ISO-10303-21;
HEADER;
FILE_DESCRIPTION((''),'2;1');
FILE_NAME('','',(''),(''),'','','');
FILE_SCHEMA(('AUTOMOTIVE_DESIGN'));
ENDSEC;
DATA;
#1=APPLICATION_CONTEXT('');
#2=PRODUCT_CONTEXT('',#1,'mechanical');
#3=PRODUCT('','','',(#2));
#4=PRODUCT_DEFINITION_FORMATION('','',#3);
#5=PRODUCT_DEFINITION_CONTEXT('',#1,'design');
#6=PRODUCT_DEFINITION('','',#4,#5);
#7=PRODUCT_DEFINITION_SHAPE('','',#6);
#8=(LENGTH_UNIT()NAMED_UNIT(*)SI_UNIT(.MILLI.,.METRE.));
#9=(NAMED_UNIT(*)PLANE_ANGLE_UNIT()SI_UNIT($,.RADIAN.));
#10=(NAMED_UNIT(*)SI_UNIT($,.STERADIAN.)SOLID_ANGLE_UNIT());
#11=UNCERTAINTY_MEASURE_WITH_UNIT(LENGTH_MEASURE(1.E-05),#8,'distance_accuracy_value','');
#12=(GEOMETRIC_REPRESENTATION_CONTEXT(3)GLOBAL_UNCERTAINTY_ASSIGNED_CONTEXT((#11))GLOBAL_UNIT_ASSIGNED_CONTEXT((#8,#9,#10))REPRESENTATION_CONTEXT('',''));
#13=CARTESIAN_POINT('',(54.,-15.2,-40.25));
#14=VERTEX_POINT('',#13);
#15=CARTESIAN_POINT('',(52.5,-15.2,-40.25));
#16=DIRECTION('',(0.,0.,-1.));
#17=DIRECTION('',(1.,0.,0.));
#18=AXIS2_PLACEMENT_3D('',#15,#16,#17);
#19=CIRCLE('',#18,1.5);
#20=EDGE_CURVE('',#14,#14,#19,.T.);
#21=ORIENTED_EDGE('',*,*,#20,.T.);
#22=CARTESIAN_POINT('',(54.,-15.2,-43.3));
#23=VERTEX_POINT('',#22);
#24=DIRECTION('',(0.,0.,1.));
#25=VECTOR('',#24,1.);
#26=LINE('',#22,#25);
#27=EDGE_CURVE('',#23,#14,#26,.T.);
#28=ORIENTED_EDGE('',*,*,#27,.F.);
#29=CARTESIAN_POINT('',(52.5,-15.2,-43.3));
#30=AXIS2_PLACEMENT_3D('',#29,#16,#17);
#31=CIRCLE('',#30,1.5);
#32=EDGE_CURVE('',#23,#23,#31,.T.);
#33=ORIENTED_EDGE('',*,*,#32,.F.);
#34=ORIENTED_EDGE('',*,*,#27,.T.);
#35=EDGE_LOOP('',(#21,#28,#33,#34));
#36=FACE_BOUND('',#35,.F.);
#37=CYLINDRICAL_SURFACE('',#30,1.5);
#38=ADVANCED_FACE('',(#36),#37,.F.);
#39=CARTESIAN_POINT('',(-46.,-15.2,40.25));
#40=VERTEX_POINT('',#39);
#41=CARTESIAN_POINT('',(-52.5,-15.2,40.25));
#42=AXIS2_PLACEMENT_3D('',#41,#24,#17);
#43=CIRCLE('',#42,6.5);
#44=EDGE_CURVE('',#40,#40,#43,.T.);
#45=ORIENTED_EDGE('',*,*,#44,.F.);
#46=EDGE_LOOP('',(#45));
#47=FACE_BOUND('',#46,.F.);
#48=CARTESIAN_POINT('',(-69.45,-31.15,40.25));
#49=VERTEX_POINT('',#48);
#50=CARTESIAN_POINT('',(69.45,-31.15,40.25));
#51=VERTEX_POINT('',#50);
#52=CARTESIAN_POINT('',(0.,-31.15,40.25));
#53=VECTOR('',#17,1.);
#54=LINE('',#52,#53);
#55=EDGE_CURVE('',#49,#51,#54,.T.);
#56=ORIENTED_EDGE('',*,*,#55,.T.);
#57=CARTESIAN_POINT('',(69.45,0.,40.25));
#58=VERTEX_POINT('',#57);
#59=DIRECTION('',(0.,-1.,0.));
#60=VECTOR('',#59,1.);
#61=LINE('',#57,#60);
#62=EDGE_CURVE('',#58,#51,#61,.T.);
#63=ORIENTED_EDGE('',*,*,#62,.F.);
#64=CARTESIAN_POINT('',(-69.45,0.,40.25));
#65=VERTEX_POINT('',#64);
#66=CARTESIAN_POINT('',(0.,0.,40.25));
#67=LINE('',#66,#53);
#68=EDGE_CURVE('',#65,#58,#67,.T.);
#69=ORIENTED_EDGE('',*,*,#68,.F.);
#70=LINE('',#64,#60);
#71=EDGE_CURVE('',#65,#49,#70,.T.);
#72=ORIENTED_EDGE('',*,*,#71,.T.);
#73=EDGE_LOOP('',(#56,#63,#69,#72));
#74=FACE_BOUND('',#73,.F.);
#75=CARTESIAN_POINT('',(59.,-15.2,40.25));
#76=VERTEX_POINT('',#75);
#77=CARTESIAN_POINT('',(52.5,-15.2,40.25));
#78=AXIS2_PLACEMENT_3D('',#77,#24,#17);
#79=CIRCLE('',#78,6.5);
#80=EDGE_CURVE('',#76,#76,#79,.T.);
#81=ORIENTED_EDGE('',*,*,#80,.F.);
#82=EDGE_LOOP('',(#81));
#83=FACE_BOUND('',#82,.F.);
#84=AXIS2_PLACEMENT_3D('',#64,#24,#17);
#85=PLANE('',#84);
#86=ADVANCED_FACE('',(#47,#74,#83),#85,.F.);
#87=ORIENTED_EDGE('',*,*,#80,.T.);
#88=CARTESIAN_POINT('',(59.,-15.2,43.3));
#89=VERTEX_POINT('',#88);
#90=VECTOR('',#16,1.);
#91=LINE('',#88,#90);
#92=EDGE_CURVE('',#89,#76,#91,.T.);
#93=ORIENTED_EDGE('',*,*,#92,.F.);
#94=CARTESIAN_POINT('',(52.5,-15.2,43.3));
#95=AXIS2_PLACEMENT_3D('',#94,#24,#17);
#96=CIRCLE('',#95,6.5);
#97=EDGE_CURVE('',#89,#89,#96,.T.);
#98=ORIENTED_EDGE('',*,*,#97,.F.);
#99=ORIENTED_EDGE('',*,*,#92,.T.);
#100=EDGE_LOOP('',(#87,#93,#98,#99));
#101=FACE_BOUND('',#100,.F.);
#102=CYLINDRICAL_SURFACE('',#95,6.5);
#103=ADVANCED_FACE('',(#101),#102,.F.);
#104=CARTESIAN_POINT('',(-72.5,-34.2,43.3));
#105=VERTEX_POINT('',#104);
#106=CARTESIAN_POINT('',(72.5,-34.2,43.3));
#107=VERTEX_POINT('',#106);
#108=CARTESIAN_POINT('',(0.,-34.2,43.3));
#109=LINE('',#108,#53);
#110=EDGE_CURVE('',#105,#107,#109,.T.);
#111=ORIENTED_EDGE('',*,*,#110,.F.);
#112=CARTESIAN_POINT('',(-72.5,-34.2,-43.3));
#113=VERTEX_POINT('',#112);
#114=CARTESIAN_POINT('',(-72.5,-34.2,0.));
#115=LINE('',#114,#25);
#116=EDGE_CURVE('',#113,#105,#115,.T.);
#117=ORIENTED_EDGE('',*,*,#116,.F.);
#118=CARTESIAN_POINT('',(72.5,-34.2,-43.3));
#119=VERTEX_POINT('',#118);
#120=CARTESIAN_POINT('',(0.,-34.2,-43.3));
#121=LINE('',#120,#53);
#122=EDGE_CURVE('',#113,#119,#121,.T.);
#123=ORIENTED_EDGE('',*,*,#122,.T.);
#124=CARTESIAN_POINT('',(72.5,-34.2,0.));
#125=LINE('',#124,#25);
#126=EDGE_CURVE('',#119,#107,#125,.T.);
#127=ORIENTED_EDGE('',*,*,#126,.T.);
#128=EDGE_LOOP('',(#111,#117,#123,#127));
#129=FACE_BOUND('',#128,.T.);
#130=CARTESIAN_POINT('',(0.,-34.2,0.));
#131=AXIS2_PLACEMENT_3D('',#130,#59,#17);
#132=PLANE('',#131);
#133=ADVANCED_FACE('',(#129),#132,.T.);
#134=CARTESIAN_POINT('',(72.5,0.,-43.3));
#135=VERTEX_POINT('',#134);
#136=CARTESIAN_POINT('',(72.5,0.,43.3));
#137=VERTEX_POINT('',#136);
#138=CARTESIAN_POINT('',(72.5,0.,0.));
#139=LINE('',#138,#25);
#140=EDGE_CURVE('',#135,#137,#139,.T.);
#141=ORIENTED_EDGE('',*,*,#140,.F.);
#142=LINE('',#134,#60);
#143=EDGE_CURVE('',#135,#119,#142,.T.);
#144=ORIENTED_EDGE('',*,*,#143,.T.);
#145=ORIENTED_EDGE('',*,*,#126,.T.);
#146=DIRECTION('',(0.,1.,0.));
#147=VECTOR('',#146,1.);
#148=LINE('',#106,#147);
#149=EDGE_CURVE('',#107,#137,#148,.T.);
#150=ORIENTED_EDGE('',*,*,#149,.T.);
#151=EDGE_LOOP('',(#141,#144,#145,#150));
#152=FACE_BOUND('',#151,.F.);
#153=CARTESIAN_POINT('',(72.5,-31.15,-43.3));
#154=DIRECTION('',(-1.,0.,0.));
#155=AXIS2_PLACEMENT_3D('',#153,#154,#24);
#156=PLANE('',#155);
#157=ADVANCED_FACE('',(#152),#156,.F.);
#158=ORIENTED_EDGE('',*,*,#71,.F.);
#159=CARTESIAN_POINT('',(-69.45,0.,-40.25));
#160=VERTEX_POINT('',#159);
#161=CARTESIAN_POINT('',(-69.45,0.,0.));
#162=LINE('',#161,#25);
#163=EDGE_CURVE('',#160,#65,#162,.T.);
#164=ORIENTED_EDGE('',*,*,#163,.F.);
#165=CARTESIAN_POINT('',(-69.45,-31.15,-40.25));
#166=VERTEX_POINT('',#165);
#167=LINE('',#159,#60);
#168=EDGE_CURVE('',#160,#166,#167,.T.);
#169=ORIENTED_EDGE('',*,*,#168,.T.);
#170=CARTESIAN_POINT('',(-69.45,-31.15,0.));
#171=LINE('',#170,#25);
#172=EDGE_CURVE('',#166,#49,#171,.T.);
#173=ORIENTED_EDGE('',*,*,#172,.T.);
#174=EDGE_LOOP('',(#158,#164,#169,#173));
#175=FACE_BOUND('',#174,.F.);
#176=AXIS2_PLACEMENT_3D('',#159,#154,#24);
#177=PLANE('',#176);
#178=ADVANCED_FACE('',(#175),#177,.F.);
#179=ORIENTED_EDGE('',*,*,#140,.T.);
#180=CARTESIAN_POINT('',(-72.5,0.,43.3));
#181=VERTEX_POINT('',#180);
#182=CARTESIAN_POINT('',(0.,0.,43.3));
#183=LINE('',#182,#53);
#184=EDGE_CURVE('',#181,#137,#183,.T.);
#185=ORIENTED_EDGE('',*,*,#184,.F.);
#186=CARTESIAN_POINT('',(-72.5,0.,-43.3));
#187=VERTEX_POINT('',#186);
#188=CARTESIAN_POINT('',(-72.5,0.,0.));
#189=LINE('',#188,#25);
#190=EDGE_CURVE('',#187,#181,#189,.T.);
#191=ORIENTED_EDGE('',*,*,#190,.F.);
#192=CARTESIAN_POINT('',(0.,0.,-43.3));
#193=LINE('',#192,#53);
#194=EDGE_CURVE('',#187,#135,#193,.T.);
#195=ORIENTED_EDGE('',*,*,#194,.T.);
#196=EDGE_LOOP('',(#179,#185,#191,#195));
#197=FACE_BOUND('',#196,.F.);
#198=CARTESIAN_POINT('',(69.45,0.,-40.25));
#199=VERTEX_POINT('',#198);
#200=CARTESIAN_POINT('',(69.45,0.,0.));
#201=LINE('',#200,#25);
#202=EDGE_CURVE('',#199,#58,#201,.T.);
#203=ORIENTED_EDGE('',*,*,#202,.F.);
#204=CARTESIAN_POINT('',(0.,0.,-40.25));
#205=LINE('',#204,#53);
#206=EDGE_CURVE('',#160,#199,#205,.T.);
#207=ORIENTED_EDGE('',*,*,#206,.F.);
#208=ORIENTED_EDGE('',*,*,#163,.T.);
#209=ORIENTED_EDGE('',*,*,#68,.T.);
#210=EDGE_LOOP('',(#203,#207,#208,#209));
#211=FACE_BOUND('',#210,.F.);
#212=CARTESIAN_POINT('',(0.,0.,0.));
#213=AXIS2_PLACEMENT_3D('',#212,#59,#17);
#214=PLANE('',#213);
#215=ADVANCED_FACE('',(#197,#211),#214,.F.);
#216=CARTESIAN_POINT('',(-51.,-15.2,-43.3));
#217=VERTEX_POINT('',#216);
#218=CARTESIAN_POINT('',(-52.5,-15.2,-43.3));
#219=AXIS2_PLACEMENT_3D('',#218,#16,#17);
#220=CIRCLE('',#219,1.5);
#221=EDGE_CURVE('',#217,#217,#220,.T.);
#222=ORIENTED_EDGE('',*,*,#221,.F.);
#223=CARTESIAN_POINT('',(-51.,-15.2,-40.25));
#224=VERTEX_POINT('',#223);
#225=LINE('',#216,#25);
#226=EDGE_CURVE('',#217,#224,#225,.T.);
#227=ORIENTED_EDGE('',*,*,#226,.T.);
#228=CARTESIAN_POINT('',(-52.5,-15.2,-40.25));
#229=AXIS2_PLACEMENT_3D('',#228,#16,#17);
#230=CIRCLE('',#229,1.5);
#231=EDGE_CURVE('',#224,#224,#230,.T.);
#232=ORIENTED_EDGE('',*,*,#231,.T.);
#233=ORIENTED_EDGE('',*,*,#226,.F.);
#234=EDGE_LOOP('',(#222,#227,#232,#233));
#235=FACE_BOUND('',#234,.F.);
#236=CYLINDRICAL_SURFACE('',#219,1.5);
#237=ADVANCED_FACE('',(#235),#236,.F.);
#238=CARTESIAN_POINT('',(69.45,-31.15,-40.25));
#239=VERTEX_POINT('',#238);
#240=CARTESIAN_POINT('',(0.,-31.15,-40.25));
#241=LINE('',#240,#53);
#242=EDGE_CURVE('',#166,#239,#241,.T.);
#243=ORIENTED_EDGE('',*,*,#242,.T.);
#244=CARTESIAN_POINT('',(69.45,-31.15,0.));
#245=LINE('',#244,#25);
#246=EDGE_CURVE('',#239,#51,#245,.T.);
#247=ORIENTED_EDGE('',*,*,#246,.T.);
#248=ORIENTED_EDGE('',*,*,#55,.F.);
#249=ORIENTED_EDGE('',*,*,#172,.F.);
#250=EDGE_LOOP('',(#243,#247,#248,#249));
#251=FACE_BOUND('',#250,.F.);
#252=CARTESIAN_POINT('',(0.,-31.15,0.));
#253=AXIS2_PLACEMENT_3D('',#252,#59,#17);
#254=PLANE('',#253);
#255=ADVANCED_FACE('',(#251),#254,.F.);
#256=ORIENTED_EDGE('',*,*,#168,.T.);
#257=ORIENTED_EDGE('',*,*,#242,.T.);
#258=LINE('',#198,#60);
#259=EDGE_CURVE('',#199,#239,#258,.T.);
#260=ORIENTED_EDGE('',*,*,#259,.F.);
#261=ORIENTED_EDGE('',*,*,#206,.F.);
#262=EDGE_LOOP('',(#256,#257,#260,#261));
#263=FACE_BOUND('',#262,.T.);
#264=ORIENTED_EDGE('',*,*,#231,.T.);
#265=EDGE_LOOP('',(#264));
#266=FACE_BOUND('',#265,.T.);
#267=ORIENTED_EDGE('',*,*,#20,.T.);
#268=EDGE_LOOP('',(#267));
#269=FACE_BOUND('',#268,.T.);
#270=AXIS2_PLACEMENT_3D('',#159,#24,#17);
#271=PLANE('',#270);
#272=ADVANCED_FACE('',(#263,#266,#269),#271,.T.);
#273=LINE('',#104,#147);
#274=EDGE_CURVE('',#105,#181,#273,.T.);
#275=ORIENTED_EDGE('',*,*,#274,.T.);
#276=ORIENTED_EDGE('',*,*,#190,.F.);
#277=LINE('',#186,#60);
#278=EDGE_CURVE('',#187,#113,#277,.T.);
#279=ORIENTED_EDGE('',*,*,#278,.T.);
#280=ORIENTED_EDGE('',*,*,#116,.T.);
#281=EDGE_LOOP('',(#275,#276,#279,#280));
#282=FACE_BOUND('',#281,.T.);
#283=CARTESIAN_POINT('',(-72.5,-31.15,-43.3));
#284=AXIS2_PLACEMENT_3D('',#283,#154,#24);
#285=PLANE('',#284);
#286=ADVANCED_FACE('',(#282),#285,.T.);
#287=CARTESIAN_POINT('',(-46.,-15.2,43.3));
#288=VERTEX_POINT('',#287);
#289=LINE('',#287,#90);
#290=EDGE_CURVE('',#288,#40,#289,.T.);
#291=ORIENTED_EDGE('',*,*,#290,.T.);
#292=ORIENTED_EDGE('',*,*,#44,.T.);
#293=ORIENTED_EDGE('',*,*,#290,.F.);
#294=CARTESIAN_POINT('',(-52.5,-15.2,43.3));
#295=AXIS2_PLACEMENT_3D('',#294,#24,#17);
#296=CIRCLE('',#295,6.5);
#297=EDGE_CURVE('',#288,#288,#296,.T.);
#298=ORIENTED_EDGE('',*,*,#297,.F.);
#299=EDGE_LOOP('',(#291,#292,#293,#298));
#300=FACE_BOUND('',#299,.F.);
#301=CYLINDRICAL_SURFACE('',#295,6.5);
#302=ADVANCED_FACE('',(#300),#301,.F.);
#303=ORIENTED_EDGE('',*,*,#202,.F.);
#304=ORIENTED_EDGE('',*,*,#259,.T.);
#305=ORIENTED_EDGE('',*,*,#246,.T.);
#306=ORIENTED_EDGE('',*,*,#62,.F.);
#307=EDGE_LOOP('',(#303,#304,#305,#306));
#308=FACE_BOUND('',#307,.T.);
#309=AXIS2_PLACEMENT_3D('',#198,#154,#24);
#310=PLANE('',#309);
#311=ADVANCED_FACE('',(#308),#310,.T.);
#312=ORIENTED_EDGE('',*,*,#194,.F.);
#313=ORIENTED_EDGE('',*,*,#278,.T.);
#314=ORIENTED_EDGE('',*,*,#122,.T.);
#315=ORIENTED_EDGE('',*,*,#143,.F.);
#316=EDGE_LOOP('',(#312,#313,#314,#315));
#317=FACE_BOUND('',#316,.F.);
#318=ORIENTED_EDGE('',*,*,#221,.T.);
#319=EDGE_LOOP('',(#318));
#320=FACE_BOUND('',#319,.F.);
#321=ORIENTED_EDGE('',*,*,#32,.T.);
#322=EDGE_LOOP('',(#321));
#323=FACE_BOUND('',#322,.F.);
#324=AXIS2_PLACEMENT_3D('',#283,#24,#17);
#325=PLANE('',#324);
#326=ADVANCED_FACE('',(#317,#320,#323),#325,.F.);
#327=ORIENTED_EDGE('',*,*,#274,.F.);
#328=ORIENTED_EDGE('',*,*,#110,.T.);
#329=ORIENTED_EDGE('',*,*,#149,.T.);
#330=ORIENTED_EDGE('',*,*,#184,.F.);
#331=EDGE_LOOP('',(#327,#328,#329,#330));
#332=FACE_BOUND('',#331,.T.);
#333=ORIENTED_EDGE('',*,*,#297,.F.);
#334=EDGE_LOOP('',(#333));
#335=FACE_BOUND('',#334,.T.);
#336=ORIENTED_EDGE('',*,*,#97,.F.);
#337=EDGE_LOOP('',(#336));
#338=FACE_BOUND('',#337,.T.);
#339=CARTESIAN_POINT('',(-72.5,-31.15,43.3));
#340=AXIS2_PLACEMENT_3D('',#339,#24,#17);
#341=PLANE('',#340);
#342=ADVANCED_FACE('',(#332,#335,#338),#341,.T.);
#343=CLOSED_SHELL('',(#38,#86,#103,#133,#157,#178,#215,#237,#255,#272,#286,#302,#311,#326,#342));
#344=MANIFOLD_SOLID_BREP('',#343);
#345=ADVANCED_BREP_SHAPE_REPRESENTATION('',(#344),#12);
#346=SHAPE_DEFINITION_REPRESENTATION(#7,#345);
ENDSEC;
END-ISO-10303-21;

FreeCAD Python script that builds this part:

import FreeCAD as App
import Part
import Sketcher
from FreeCAD import Vector
Q = App.Units.Quantity

doc = App.newDocument("Part")
body = doc.addObject("PartDesign::Body", "Body")

# Sketch on XZ plane
sketch1 = doc.addObject("Sketcher::SketchObject", "Sketch")
body.addObject(sketch1)
sketch1.AttachmentSupport = (doc.XZ_Plane, [""])
sketch1.MapMode = "FlatFace"
sketch1.addGeometry([
    Part.LineSegment(Vector(-72, 43, 0), Vector(-72, -43, 0)),  # 0
    Part.LineSegment(Vector(-72, -43, 0), Vector(72, -43, 0)),  # 1
    Part.LineSegment(Vector(72, -43, 0), Vector(72, 43, 0)),  # 2
    Part.LineSegment(Vector(72, 43, 0), Vector(-72, 43, 0)),  # 3
    Part.LineSegment(Vector(69, -40, 0), Vector(-69, -40, 0)),  # 4
    Part.LineSegment(Vector(-69, -40, 0), Vector(-69, 40, 0)),  # 5
    Part.LineSegment(Vector(-69, 40, 0), Vector(69, 40, 0)),  # 6
    Part.LineSegment(Vector(69, 40, 0), Vector(69, -40, 0)),  # 7
], False)
sketch1.addConstraint([
    Sketcher.Constraint("Coincident", 0, 2, 1, 1),
    Sketcher.Constraint("Coincident", 1, 2, 2, 1),
    Sketcher.Constraint("Coincident", 2, 2, 3, 1),
    Sketcher.Constraint("Coincident", 3, 2, 0, 1),
    Sketcher.Constraint("Coincident", 4, 2, 5, 1),
    Sketcher.Constraint("Coincident", 5, 2, 6, 1),
    Sketcher.Constraint("Coincident", 6, 2, 7, 1),
    Sketcher.Constraint("Coincident", 7, 2, 4, 1),
    Sketcher.Constraint("Vertical", 0),
    Sketcher.Constraint("Horizontal", 1),
    Sketcher.Constraint("Vertical", 2),
    Sketcher.Constraint("Horizontal", 3),
    Sketcher.Constraint("Horizontal", 4),
    Sketcher.Constraint("Vertical", 5),
    Sketcher.Constraint("Horizontal", 6),
    Sketcher.Constraint("Vertical", 7),
    Sketcher.Constraint("Symmetric", 0, 2, 2, 2, -1, 1),
    Sketcher.Constraint("Symmetric", 4, 2, 6, 2, -1, 1),
    Sketcher.Constraint("DistanceX", 1, 1, 1, 2, Q("145 mm")),
    Sketcher.Constraint("DistanceX", 4, 2, 4, 1, Q("138.9 mm")),
    Sketcher.Constraint("DistanceY", 0, 2, 0, 1, Q("86.6 mm")),
    Sketcher.Constraint("DistanceY", 5, 1, 5, 2, Q("80.5 mm")),
])
pad1 = doc.addObject("PartDesign::Pad", "Pad")
body.addObject(pad1)
pad1.Profile = sketch1
pad1.Length = 31.15

# Sketch on XZ plane
sketch2 = doc.addObject("Sketcher::SketchObject", "Sketch001")
body.addObject(sketch2)
sketch2.AttachmentSupport = (doc.XZ_Plane, [""])
sketch2.MapMode = "FlatFace"
sketch2.AttachmentOffset = App.Placement(Vector(0, 0, 31.15), App.Rotation())
sketch2.addGeometry([
    Part.LineSegment(Vector(-72, 43, 0), Vector(-72, -43, 0)),
    Part.LineSegment(Vector(-72, -43, 0), Vector(72, -43, 0)),
    Part.LineSegment(Vector(72, -43, 0), Vector(72, 43, 0)),
    Part.LineSegment(Vector(72, 43, 0), Vector(-72, 43, 0)),
], False)
sketch2.addConstraint([
    Sketcher.Constraint("Coincident", 0, 2, 1, 1),
    Sketcher.Constraint("Coincident", 1, 2, 2, 1),
    Sketcher.Constraint("Coincident", 2, 2, 3, 1),
    Sketcher.Constraint("Coincident", 3, 2, 0, 1),
    Sketcher.Constraint("Vertical", 0),
    Sketcher.Constraint("Horizontal", 1),
    Sketcher.Constraint("Vertical", 2),
    Sketcher.Constraint("Horizontal", 3),
    Sketcher.Constraint("Symmetric", 0, 2, 2, 2, -1, 1),
    Sketcher.Constraint("DistanceX", 1, 1, 1, 2, Q("145 mm")),
    Sketcher.Constraint("DistanceY", 0, 2, 0, 1, Q("86.6 mm")),
])
pad2 = doc.addObject("PartDesign::Pad", "Pad001")
body.addObject(pad2)
pad2.Profile = sketch2
pad2.Length = 3.05

# Sketch on XY plane
sketch3 = doc.addObject("Sketcher::SketchObject", "Sketch002")
body.addObject(sketch3)
sketch3.AttachmentSupport = (doc.XY_Plane, [""])
sketch3.MapMode = "FlatFace"
sketch3.AttachmentOffset = App.Placement(Vector(0, 0, 43.3), App.Rotation())
sketch3.addGeometry([
    Part.Circle(Vector(-52, -15, 0), Vector(0, 0, 1), 6),
    Part.Circle(Vector(52, -15, 0), Vector(0, 0, 1), 6),
], False)
sketch3.addConstraint([
    Sketcher.Constraint("Equal", 0, 1),
    Sketcher.Constraint("Symmetric", 0, 3, 1, 3, -2),
    Sketcher.Constraint("Diameter", 0, Q("13 mm")),
    Sketcher.Constraint("DistanceX", 0, 3, 1, 3, Q("105 mm")),
    Sketcher.Constraint("DistanceY", 0, 3, -1, 1, Q("15.2 mm")),
])
pocket1 = doc.addObject("PartDesign::Pocket", "Pocket")
body.addObject(pocket1)
pocket1.Profile = sketch3
pocket1.Length = 25

# Sketch on XY plane
sketch4 = doc.addObject("Sketcher::SketchObject", "Sketch003")
body.addObject(sketch4)
sketch4.AttachmentSupport = (doc.XY_Plane, [""])
sketch4.MapMode = "FlatFace"
sketch4.AttachmentOffset = App.Placement(Vector(0, 0, -43.3), App.Rotation())
sketch4.addGeometry([
    Part.Circle(Vector(-52.5, -15.2, 0), Vector(0, 0, 1), 1.5),
    Part.Circle(Vector(52.5, -15.2, 0), Vector(0, 0, 1), 1.5),
], False)
sketch4.addConstraint([
    Sketcher.Constraint("Equal", 0, 1),
    Sketcher.Constraint("Symmetric", 0, 3, 1, 3, -2),
    Sketcher.Constraint("Diameter", 0, Q("3 mm")),
    Sketcher.Constraint("DistanceX", 0, 3, 1, 3, Q("105 mm")),
    Sketcher.Constraint("DistanceY", 0, 3, -1, 1, Q("15.2 mm")),
])
pocket2 = doc.addObject("PartDesign::Pocket", "Pocket001")
body.addObject(pocket2)
pocket2.Profile = sketch4
pocket2.Length = 25
pocket2.Reversed = True

doc.recompute()
